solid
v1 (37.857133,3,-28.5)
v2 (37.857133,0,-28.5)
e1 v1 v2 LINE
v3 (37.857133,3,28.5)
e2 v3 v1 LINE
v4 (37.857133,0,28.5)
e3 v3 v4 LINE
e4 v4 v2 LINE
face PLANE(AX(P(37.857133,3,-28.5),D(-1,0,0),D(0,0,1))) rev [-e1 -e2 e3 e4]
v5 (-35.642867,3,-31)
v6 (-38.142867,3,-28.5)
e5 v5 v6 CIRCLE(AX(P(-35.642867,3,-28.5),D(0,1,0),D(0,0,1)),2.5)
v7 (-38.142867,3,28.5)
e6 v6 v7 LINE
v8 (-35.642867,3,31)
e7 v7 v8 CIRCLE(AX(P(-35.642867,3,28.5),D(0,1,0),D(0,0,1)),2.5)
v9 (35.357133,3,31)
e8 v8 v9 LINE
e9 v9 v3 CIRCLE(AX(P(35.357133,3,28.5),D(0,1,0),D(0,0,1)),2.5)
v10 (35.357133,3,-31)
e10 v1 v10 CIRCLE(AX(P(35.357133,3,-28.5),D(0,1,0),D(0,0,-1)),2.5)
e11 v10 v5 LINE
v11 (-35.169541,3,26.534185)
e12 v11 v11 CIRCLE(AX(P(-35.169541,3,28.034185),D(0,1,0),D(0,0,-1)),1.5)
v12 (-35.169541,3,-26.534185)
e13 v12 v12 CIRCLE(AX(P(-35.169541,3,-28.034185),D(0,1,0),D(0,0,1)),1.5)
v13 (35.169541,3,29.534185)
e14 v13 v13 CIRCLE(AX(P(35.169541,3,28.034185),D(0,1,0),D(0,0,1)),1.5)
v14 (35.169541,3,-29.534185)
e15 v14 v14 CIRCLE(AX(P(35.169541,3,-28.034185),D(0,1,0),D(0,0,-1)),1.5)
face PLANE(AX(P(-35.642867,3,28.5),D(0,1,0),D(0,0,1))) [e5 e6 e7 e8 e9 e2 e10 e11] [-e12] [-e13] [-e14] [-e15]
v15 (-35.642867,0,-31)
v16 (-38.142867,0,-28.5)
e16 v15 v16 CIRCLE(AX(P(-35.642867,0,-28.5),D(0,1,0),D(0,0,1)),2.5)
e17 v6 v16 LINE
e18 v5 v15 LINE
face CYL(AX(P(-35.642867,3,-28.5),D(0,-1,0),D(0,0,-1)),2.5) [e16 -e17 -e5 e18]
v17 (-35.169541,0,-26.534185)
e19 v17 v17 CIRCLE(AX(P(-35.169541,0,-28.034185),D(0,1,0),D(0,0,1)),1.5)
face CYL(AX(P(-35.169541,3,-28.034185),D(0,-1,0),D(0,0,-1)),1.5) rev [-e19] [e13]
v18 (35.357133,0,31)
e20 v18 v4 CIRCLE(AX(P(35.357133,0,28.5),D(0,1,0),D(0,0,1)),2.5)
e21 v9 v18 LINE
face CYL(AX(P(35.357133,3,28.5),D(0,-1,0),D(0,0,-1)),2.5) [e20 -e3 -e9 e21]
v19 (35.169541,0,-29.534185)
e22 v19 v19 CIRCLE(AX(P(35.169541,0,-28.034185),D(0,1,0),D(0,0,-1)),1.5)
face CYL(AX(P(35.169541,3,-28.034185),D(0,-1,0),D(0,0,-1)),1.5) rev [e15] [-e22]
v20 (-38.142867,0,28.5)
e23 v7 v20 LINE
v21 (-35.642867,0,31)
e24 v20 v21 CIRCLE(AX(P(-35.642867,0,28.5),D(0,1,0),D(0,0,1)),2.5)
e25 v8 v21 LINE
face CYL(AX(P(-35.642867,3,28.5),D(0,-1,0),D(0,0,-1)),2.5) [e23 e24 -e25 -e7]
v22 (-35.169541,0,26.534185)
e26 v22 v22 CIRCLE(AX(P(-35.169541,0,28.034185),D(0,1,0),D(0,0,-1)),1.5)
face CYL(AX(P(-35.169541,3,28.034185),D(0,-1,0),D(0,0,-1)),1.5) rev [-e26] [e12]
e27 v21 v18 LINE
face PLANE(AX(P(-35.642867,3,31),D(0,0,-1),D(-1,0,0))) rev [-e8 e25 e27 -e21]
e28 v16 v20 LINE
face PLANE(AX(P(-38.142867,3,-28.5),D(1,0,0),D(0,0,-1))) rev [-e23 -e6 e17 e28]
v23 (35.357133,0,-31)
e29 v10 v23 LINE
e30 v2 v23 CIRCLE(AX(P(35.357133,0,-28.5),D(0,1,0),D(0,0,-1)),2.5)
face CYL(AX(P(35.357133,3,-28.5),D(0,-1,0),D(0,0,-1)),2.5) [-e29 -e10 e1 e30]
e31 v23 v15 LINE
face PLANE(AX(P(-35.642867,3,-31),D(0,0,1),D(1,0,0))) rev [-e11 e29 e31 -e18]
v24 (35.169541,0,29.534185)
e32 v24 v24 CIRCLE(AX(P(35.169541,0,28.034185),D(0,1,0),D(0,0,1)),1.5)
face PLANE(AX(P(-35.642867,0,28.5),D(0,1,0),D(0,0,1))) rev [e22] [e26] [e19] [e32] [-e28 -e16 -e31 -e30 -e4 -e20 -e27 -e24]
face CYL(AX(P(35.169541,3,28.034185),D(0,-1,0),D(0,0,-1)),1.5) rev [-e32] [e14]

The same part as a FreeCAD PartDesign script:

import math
import FreeCAD as App
import Part
import Sketcher

V = App.Vector

doc = App.newDocument("Part")
body = doc.addObject("PartDesign::Body", "Body")

# Sketch on XZ plane
sketch1 = body.newObject("Sketcher::SketchObject", "Sketch")
sketch1.AttachmentSupport = (doc.getObject("XZ_Plane"), [""])
sketch1.MapMode = "FlatFace"
sketch1.addGeometry([
    Part.LineSegment(V(35.357133, -31, 0), V(-35.642867, -31, 0)),  # 0
    Part.ArcOfCircle(Part.Circle(V(-35.642867, -28.5, 0), V(0, 0, 1), 2.5), math.radians(180), math.radians(270)),  # 1
    Part.LineSegment(V(-38.142867, -28.5, 0), V(-38.142867, 28.5, 0)),  # 2
    Part.ArcOfCircle(Part.Circle(V(-35.642867, 28.5, 0), V(0, 0, 1), 2.5), math.radians(90), math.radians(180)),  # 3
    Part.LineSegment(V(-35.642867, 31, 0), V(35.357133, 31, 0)),  # 4
    Part.ArcOfCircle(Part.Circle(V(35.357133, 28.5, 0), V(0, 0, 1), 2.5), math.radians(0), math.radians(90)),  # 5
    Part.LineSegment(V(37.857133, 28.5, 0), V(37.857133, -28.5, 0)),  # 6
    Part.ArcOfCircle(Part.Circle(V(35.357133, -28.5, 0), V(0, 0, 1), 2.5), math.radians(-90), math.radians(0)),  # 7
    Part.Circle(V(35.169541, 28.034185, 0), V(0, 0, 1), 1.5),  # 8
    Part.Circle(V(-35.169541, 28.034185, 0), V(0, 0, 1), 1.5),  # 9
    Part.Circle(V(35.169541, -28.034185, 0), V(0, 0, 1), 1.5),  # 10
    Part.Circle(V(-35.169541, -28.034185, 0), V(0, 0, 1), 1.5),  # 11
], False)
sketch1.addConstraint([
    Sketcher.Constraint("Tangent", 0, 2, 1, 2),
    Sketcher.Constraint("Tangent", 1, 1, 2, 1),
    Sketcher.Constraint("Tangent", 2, 2, 3, 2),
    Sketcher.Constraint("Tangent", 3, 1, 4, 1),
    Sketcher.Constraint("Tangent", 4, 2, 5, 2),
    Sketcher.Constraint("Tangent", 5, 1, 6, 1),
    Sketcher.Constraint("Tangent", 6, 2, 7, 2),
    Sketcher.Constraint("Tangent", 7, 1, 0, 1),
    Sketcher.Constraint("Horizontal", 0),
    Sketcher.Constraint("Vertical", 2),
    Sketcher.Constraint("Horizontal", 4),
    Sketcher.Constraint("Vertical", 6),
    Sketcher.Constraint("Equal", 1, 3),
    Sketcher.Constraint("Equal", 3, 5),
    Sketcher.Constraint("Equal", 5, 7),
    Sketcher.Constraint("Equal", 8, 9),
    Sketcher.Constraint("Equal", 9, 10),
    Sketcher.Constraint("Equal", 10, 11),
    Sketcher.Constraint("Symmetric", 9, 3, 10, 3, -1, 1),
    Sketcher.Constraint("Symmetric", 8, 3, 11, 3, -1, 1),
    Sketcher.Constraint("Symmetric", 8, 3, 9, 3, -2),
    Sketcher.Constraint("Diameter", 8, 3.0),
    Sketcher.Constraint("Radius", 1, 2.5),
    Sketcher.Constraint("DistanceX", 0, 2, 0, 1, 71.0),
    Sketcher.Constraint("DistanceY", 2, 1, 2, 2, 57.0),
    Sketcher.Constraint("DistanceY", 0, 2, -1, 1, 31.0),
    Sketcher.Constraint("DistanceX", -1, 1, 8, 3, 35.169541),
    Sketcher.Constraint("DistanceX", 8, 3, 5, 3, 0.187592),
    Sketcher.Constraint("DistanceY", 10, 3, 8, 3, 56.06837),
])
pad1 = body.newObject("PartDesign::Pad", "Pad")
pad1.Profile = sketch1
pad1.Length = 3
pad1.Reversed = True

doc.recompute()
